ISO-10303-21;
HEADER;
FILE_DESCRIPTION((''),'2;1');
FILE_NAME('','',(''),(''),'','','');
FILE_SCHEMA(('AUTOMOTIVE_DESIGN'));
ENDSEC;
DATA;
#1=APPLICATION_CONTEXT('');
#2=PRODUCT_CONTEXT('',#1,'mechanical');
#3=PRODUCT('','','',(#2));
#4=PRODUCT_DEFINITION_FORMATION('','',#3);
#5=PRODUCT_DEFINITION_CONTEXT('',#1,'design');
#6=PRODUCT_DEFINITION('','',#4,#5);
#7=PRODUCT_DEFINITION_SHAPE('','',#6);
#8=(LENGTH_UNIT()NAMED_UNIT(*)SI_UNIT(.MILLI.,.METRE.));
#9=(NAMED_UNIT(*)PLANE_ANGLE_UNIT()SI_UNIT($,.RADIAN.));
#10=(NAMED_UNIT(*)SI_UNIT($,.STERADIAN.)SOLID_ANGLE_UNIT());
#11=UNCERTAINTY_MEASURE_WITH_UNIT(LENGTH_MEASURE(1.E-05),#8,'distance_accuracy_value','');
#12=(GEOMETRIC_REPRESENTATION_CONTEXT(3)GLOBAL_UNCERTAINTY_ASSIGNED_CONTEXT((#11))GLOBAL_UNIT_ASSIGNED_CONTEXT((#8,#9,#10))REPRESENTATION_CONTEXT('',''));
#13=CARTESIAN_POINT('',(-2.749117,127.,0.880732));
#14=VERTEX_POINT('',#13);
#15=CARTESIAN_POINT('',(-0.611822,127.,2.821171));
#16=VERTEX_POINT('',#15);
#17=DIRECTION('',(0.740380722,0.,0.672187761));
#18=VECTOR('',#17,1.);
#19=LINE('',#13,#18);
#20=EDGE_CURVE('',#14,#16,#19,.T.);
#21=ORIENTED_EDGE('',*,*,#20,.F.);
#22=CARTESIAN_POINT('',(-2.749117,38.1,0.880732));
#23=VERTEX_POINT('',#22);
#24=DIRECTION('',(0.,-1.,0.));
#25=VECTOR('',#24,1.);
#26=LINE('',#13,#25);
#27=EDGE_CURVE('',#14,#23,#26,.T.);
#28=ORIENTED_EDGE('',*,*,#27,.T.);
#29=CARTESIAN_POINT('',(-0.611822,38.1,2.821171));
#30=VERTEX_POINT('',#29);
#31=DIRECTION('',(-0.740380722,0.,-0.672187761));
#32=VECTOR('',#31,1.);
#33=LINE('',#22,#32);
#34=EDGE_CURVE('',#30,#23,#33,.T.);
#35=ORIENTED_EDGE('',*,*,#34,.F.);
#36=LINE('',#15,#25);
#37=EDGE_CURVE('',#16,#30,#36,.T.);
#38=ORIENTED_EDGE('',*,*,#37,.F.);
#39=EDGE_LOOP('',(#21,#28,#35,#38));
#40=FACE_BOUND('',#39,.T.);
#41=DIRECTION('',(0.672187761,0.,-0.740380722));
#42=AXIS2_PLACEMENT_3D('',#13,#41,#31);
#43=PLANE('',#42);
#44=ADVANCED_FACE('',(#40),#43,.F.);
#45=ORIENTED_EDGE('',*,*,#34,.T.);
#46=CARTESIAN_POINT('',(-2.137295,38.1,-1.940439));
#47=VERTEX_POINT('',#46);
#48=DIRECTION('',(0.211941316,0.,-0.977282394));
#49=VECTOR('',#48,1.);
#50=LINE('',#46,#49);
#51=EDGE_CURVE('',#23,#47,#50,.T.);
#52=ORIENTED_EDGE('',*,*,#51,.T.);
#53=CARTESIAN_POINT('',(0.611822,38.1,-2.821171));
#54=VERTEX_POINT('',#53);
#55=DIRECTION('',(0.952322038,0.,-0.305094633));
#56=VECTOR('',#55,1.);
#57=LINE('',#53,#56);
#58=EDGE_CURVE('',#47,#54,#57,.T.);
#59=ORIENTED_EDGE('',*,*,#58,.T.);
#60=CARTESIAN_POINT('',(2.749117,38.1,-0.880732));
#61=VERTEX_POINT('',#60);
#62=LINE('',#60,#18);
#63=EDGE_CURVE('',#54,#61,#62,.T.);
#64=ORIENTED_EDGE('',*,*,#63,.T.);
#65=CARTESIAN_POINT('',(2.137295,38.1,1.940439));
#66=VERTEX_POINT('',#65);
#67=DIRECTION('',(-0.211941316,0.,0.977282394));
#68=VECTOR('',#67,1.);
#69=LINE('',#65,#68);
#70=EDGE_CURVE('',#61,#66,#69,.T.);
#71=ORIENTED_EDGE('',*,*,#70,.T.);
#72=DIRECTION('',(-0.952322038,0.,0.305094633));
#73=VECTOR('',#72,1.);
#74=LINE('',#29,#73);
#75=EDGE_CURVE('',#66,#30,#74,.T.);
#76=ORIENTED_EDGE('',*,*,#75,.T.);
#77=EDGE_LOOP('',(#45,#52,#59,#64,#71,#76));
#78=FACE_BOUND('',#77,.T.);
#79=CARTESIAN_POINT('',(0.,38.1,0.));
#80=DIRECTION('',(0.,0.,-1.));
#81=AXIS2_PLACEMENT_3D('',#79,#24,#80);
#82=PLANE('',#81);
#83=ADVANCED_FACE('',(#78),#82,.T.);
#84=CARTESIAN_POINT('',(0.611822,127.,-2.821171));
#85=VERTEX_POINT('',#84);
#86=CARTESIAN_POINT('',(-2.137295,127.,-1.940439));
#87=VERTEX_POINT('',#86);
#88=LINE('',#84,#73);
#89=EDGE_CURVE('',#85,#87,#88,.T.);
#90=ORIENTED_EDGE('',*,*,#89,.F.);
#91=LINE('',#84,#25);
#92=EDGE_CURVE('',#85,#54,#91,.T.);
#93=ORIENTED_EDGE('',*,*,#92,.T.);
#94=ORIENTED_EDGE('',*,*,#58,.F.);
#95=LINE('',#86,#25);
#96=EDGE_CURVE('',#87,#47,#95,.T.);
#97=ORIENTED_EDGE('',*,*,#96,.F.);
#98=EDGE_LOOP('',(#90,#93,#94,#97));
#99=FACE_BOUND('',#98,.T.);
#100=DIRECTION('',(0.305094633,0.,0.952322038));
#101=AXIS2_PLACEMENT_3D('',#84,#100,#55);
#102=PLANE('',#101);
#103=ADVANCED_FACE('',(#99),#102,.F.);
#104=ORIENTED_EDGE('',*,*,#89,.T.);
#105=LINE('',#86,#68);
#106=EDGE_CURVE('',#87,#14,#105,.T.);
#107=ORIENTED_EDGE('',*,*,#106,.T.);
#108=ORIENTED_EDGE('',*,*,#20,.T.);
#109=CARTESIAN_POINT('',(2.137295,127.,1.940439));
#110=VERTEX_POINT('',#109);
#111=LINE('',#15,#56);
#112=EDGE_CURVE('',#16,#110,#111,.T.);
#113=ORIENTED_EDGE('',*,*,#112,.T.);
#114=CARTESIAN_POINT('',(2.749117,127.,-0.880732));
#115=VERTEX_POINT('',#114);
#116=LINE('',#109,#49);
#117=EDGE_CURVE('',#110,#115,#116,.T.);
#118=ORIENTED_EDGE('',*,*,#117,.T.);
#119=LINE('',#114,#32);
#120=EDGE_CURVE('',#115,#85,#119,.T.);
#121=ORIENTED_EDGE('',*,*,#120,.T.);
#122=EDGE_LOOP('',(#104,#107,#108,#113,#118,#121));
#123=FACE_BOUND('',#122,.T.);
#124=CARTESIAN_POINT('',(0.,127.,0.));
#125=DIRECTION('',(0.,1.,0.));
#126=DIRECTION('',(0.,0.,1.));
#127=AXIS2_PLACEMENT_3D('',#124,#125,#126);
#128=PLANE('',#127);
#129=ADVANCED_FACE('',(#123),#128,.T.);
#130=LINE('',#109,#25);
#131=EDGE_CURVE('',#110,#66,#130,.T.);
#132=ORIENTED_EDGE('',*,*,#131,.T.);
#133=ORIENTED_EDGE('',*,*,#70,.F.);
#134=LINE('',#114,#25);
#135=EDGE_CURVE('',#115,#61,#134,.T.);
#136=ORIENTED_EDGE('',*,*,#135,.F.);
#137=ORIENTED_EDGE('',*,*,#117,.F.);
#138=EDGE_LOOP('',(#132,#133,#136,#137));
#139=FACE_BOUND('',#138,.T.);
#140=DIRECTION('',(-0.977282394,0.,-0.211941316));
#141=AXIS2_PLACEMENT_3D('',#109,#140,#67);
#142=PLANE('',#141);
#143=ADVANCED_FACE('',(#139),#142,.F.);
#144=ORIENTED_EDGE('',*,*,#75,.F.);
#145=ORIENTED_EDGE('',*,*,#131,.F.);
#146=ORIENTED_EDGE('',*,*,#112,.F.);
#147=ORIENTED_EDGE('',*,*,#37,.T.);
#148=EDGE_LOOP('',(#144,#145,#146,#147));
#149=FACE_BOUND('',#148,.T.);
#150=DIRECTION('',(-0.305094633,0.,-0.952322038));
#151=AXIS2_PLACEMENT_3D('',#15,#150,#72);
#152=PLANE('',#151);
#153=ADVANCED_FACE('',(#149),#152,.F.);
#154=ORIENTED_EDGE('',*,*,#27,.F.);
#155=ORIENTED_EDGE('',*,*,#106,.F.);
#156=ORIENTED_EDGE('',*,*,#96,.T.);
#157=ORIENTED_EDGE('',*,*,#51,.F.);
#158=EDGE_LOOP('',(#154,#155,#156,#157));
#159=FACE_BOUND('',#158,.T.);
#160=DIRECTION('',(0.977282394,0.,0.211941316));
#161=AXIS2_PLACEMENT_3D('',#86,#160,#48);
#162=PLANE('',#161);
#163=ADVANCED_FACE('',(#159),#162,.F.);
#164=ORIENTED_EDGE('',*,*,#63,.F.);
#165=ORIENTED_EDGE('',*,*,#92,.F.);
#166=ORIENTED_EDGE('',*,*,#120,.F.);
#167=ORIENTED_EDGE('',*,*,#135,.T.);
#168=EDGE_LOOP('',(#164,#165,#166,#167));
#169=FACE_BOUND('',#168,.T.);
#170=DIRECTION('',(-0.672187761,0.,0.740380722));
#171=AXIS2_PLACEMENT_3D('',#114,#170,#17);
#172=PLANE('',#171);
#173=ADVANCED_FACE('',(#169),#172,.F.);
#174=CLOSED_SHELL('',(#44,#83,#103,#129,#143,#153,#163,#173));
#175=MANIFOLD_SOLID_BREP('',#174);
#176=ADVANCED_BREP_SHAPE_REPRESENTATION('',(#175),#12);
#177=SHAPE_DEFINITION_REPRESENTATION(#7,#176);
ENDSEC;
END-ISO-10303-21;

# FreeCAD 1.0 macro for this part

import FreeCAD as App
import Part
import Sketcher
from FreeCAD import Vector
Q = App.Units.Quantity

doc = App.newDocument("Part")
body = doc.addObject("PartDesign::Body", "Body")

sketch1 = body.newObject("Sketcher::SketchObject", "Sketch")
sketch1.AttachmentSupport = (doc.getObject("XZ_Plane"), [""])
sketch1.MapMode = "FlatFace"
sketch1.addGeometry(Part.LineSegment(Vector(2.1, 1.9, 0), Vector(2.7, -0.9, 0)), False)
sketch1.addGeometry(Part.LineSegment(Vector(2.7, -0.9, 0), Vector(0.6, -2.8, 0)), False)
sketch1.addGeometry(Part.LineSegment(Vector(0.6, -2.8, 0), Vector(-2.1, -1.9, 0)), False)
sketch1.addGeometry(Part.LineSegment(Vector(-2.1, -1.9, 0), Vector(-2.7, 0.9, 0)), False)
sketch1.addGeometry(Part.LineSegment(Vector(-2.7, 0.9, 0), Vector(-0.6, 2.8, 0)), False)
sketch1.addGeometry(Part.LineSegment(Vector(-0.6, 2.8, 0), Vector(2.1, 1.9, 0)), False)
sketch1.addConstraint(Sketcher.Constraint("Coincident", 0, 2, 1, 1))
sketch1.addConstraint(Sketcher.Constraint("Coincident", 1, 2, 2, 1))
sketch1.addConstraint(Sketcher.Constraint("Coincident", 2, 2, 3, 1))
sketch1.addConstraint(Sketcher.Constraint("Coincident", 3, 2, 4, 1))
sketch1.addConstraint(Sketcher.Constraint("Coincident", 4, 2, 5, 1))
sketch1.addConstraint(Sketcher.Constraint("Coincident", 5, 2, 0, 1))
sketch1.addConstraint(Sketcher.Constraint("Symmetric", 0, 2, 3, 2, -1, 1))
sketch1.addConstraint(Sketcher.Constraint("Symmetric", 1, 2, 4, 2, -1, 1))
sketch1.addConstraint(Sketcher.Constraint("Symmetric", 2, 2, 5, 2, -1, 1))
sketch1.addConstraint(Sketcher.Constraint("Equal", 0, 1))
sketch1.addConstraint(Sketcher.Constraint("Equal", 1, 2))
sketch1.addConstraint(Sketcher.Constraint("Distance", 0, Q("2.886751 mm")))
sketch1.addConstraint(Sketcher.Constraint("DistanceX", -1, 1, 1, 2, Q("0.611822 mm")))
sketch1.addConstraint(Sketcher.Constraint("DistanceY", 1, 2, -1, 1, Q("2.821171 mm")))
sketch1.addConstraint(Sketcher.Constraint("DistanceY", 2, 2, -1, 1, Q("1.940439 mm")))
pad1 = body.newObject("PartDesign::Pad", "Pad")
pad1.Profile = sketch1
pad1.Length = Q("5 in")
pad1.Reversed = True

sketch2 = body.newObject("Sketcher::SketchObject", "Sketch001")
sketch2.AttachmentSupport = (doc.getObject("XZ_Plane"), [""])
sketch2.MapMode = "FlatFace"
sketch2.addGeometry(Part.LineSegment(Vector(-13, 10, 0), Vector(-13, -8, 0)), False)
sketch2.addGeometry(Part.LineSegment(Vector(-13, -8, 0), Vector(7, -8, 0)), False)
sketch2.addGeometry(Part.LineSegment(Vector(7, -8, 0), Vector(7, 10, 0)), False)
sketch2.addGeometry(Part.LineSegment(Vector(7, 10, 0), Vector(-13, 10, 0)), False)
sketch2.addConstraint(Sketcher.Constraint("Coincident", 0, 2, 1, 1))
sketch2.addConstraint(Sketcher.Constraint("Coincident", 1, 2, 2, 1))
sketch2.addConstraint(Sketcher.Constraint("Coincident", 2, 2, 3, 1))
sketch2.addConstraint(Sketcher.Constraint("Coincident", 3, 2, 0, 1))
sketch2.addConstraint(Sketcher.Constraint("Vertical", 0))
sketch2.addConstraint(Sketcher.Constraint("Horizontal", 1))
sketch2.addConstraint(Sketcher.Constraint("Vertical", 2))
sketch2.addConstraint(Sketcher.Constraint("Horizontal", 3))
sketch2.addConstraint(Sketcher.Constraint("DistanceX", 0, 2, -1, 1, Q("13.2192 mm")))
sketch2.addConstraint(Sketcher.Constraint("DistanceX", 1, 1, 1, 2, Q("20.194547 mm")))
sketch2.addConstraint(Sketcher.Constraint("DistanceY", 0, 2, 0, 1, Q("18.170774 mm")))
sketch2.addConstraint(Sketcher.Constraint("DistanceY", 0, 2, -1, 1, Q("8.313967 mm")))
pocket1 = body.newObject("PartDesign::Pocket", "Pocket")
pocket1.Profile = sketch2
pocket1.Length = Q("1.5 in")

doc.recompute()
